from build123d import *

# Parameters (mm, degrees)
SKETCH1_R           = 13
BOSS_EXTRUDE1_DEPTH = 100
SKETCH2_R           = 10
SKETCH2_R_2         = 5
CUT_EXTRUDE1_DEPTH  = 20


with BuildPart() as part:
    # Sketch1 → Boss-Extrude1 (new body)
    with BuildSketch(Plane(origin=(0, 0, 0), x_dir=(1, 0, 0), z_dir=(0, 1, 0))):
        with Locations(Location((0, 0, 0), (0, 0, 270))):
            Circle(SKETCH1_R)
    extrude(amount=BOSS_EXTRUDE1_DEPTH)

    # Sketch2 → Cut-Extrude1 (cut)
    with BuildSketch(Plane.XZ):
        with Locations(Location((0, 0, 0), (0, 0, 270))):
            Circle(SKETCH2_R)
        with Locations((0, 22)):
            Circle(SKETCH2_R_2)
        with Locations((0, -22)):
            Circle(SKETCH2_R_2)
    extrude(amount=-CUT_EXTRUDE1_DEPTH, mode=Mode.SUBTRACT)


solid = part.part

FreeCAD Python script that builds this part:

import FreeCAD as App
import Part
import Sketcher

V = App.Vector

doc = App.newDocument("Part")
body = doc.addObject("PartDesign::Body", "Body")

sketch1 = body.newObject("Sketcher::SketchObject", "Sketch")
sketch1.AttachmentSupport = (doc.getObject("XZ_Plane"), [""])
sketch1.MapMode = "FlatFace"
sketch1.addGeometry(Part.Circle(V(0, 0, 0), V(0, 0, 1), 13), False)
sketch1.addConstraint(Sketcher.Constraint("Coincident", 0, 3, -1, 1))
sketch1.addConstraint(Sketcher.Constraint("Diameter", 0, 26.0))
pad1 = body.newObject("PartDesign::Pad", "Pad")
pad1.Profile = sketch1
pad1.Length = 100
pad1.Reversed = True

sketch2 = body.newObject("Sketcher::SketchObject", "Sketch001")
sketch2.AttachmentSupport = (doc.getObject("XZ_Plane"), [""])
sketch2.MapMode = "FlatFace"
sketch2.addGeometry(Part.Circle(V(0, 0, 0), V(0, 0, 1), 10), False)
sketch2.addGeometry(Part.Circle(V(0, 22, 0), V(0, 0, 1), 5), False)
sketch2.addGeometry(Part.Circle(V(0, -22, 0), V(0, 0, 1), 5), False)
sketch2.addConstraint(Sketcher.Constraint("Coincident", 0, 3, -1, 1))
sketch2.addConstraint(Sketcher.Constraint("Equal", 1, 2))
sketch2.addConstraint(Sketcher.Constraint("Symmetric", 1, 3, 2, 3, -1, 1))
sketch2.addConstraint(Sketcher.Constraint("PointOnObject", 1, 3, -2))
sketch2.addConstraint(Sketcher.Constraint("Diameter", 0, 20.0))
sketch2.addConstraint(Sketcher.Constraint("Diameter", 1, 10.0))
sketch2.addConstraint(Sketcher.Constraint("DistanceY", -1, 1, 1, 3, 22.0))
pocket1 = body.newObject("PartDesign::Pocket", "Pocket")
pocket1.Profile = sketch2
pocket1.Length = 20

doc.recompute()
